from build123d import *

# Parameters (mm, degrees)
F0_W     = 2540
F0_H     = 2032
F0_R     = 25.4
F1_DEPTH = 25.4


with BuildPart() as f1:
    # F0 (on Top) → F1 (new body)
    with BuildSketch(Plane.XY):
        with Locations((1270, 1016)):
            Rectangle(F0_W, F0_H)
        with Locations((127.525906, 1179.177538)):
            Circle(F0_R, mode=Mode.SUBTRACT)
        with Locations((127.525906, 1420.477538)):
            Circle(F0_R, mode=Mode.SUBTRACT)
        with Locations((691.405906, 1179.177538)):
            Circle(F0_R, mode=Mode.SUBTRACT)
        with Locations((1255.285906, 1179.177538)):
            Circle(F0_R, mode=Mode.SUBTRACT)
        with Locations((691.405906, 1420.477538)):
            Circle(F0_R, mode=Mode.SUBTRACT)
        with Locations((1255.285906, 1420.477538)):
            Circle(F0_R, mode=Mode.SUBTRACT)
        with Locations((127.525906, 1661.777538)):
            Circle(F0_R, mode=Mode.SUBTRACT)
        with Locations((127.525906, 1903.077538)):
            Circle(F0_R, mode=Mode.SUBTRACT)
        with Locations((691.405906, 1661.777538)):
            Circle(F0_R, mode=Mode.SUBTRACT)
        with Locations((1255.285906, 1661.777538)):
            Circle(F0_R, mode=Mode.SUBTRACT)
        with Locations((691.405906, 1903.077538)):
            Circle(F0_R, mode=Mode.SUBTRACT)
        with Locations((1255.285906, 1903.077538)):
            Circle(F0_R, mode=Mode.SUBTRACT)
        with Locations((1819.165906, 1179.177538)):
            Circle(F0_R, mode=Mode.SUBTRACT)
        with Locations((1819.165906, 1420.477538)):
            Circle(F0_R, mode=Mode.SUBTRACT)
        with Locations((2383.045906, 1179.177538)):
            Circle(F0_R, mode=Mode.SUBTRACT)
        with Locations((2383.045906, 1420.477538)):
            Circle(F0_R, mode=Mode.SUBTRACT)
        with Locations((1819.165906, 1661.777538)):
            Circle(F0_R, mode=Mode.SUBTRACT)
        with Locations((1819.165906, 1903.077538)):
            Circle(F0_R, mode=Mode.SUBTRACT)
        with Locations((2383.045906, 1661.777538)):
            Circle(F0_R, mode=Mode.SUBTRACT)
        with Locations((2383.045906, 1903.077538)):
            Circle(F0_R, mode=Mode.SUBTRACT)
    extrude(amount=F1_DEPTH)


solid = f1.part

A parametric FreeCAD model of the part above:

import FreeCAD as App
import Part
import Sketcher
from FreeCAD import Vector
Q = App.Units.Quantity

doc = App.newDocument("Part")
body = doc.addObject("PartDesign::Body", "Body")

# Sketch on XY plane
sketch1 = body.newObject("Sketcher::SketchObject", "Sketch")
sketch1.AttachmentSupport = (doc.getObject("XY_Plane"), [""])
sketch1.MapMode = "FlatFace"
sketch1.addGeometry([
    Part.LineSegment(Vector(0, 2032, 0), Vector(0, 0, 0)),  # 0
    Part.LineSegment(Vector(0, 0, 0), Vector(2540, 0, 0)),  # 1
    Part.LineSegment(Vector(2540, 0, 0), Vector(2540, 2032, 0)),  # 2
    Part.LineSegment(Vector(2540, 2032, 0), Vector(0, 2032, 0)),  # 3
    Part.Circle(Vector(128, 1179, 0), Vector(0, 0, 1), 25),  # 4
    Part.Circle(Vector(691, 1179, 0), Vector(0, 0, 1), 25),  # 5
    Part.Circle(Vector(128, 1420, 0), Vector(0, 0, 1), 25),  # 6
    Part.Circle(Vector(691, 1420, 0), Vector(0, 0, 1), 25),  # 7
    Part.Circle(Vector(1255, 1179, 0), Vector(0, 0, 1), 25),  # 8
    Part.Circle(Vector(1819, 1179, 0), Vector(0, 0, 1), 25),  # 9
    Part.Circle(Vector(2383, 1179, 0), Vector(0, 0, 1), 25),  # 10
    Part.Circle(Vector(1255, 1420, 0), Vector(0, 0, 1), 25),  # 11
    Part.Circle(Vector(1819, 1420, 0), Vector(0, 0, 1), 25),  # 12
    Part.Circle(Vector(2383, 1420, 0), Vector(0, 0, 1), 25),  # 13
    Part.Circle(Vector(128, 1662, 0), Vector(0, 0, 1), 25),  # 14
    Part.Circle(Vector(691, 1662, 0), Vector(0, 0, 1), 25),  # 15
    Part.Circle(Vector(128, 1903, 0), Vector(0, 0, 1), 25),  # 16
    Part.Circle(Vector(691, 1903, 0), Vector(0, 0, 1), 25),  # 17
    Part.Circle(Vector(1255, 1662, 0), Vector(0, 0, 1), 25),  # 18
    Part.Circle(Vector(1819, 1662, 0), Vector(0, 0, 1), 25),  # 19
    Part.Circle(Vector(2383, 1662, 0), Vector(0, 0, 1), 25),  # 20
    Part.Circle(Vector(1255, 1903, 0), Vector(0, 0, 1), 25),  # 21
    Part.Circle(Vector(1819, 1903, 0), Vector(0, 0, 1), 25),  # 22
    Part.Circle(Vector(2383, 1903, 0), Vector(0, 0, 1), 25),  # 23
], False)
sketch1.addConstraint([
    Sketcher.Constraint("Coincident", 0, 2, 1, 1),
    Sketcher.Constraint("Coincident", 1, 2, 2, 1),
    Sketcher.Constraint("Coincident", 2, 2, 3, 1),
    Sketcher.Constraint("Coincident", 3, 2, 0, 1),
    Sketcher.Constraint("Vertical", 0),
    Sketcher.Constraint("Horizontal", 1),
    Sketcher.Constraint("Vertical", 2),
    Sketcher.Constraint("Horizontal", 3),
    Sketcher.Constraint("Coincident", 0, 2, -1, 1),
    Sketcher.Constraint("Equal", 4, 5),
    Sketcher.Constraint("Equal", 5, 6),
    Sketcher.Constraint("Equal", 6, 7),
    Sketcher.Constraint("Equal", 7, 8),
    Sketcher.Constraint("Equal", 8, 9),
    Sketcher.Constraint("Equal", 9, 10),
    Sketcher.Constraint("Equal", 10, 11),
    Sketcher.Constraint("Equal", 11, 12),
    Sketcher.Constraint("Equal", 12, 13),
    Sketcher.Constraint("Equal", 13, 14),
    Sketcher.Constraint("Equal", 14, 15),
    Sketcher.Constraint("Equal", 15, 16),
    Sketcher.Constraint("Equal", 16, 17),
    Sketcher.Constraint("Equal", 17, 18),
    Sketcher.Constraint("Equal", 18, 19),
    Sketcher.Constraint("Equal", 19, 20),
    Sketcher.Constraint("Equal", 20, 21),
    Sketcher.Constraint("Equal", 21, 22),
    Sketcher.Constraint("Equal", 22, 23),
    Sketcher.Constraint("Horizontal", 4, 3, 5, 3),
    Sketcher.Constraint("Horizontal", 6, 3, 7, 3),
    Sketcher.Constraint("Horizontal", 5, 3, 8, 3),
    Sketcher.Constraint("Horizontal", 8, 3, 9, 3),
    Sketcher.Constraint("Horizontal", 9, 3, 10, 3),
    Sketcher.Constraint("Horizontal", 7, 3, 11, 3),
    Sketcher.Constraint("Horizontal", 11, 3, 12, 3),
    Sketcher.Constraint("Horizontal", 12, 3, 13, 3),
    Sketcher.Constraint("Horizontal", 14, 3, 15, 3),
    Sketcher.Constraint("Horizontal", 16, 3, 17, 3),
    Sketcher.Constraint("Horizontal", 15, 3, 18, 3),
    Sketcher.Constraint("Horizontal", 18, 3, 19, 3),
    Sketcher.Constraint("Horizontal", 19, 3, 20, 3),
    Sketcher.Constraint("Horizontal", 17, 3, 21, 3),
    Sketcher.Constraint("Horizontal", 21, 3, 22, 3),
    Sketcher.Constraint("Horizontal", 22, 3, 23, 3),
    Sketcher.Constraint("Vertical", 4, 3, 6, 3),
    Sketcher.Constraint("Vertical", 5, 3, 7, 3),
    Sketcher.Constraint("Vertical", 8, 3, 11, 3),
    Sketcher.Constraint("Vertical", 9, 3, 12, 3),
    Sketcher.Constraint("Vertical", 10, 3, 13, 3),
    Sketcher.Constraint("Vertical", 6, 3, 14, 3),
    Sketcher.Constraint("Vertical", 7, 3, 15, 3),
    Sketcher.Constraint("Vertical", 14, 3, 16, 3),
    Sketcher.Constraint("Vertical", 15, 3, 17, 3),
    Sketcher.Constraint("Vertical", 11, 3, 18, 3),
    Sketcher.Constraint("Vertical", 12, 3, 19, 3),
    Sketcher.Constraint("Vertical", 13, 3, 20, 3),
    Sketcher.Constraint("Vertical", 18, 3, 21, 3),
    Sketcher.Constraint("Vertical", 19, 3, 22, 3),
    Sketcher.Constraint("Vertical", 20, 3, 23, 3),
    Sketcher.Constraint("Diameter", 4, Q("2 in")),
    Sketcher.Constraint("DistanceX", 1, 1, 1, 2, Q("100 in")),
    Sketcher.Constraint("DistanceY", 0, 2, 0, 1, Q("80 in")),
    Sketcher.Constraint("DistanceY", 4, 3, 14, 3, Q("19 in")),
    Sketcher.Constraint("DistanceY", 6, 3, 16, 3, Q("19 in")),
    Sketcher.Constraint("DistanceX", 4, 3, 5, 3, Q("22.2 in")),
    Sketcher.Constraint("DistanceY", 4, 3, 6, 3, Q("9.5 in")),
    Sketcher.Constraint("DistanceX", 5, 3, 8, 3, Q("22.2 in")),
    Sketcher.Constraint("DistanceX", 8, 3, 9, 3, Q("22.2 in")),
    Sketcher.Constraint("DistanceX", 9, 3, 10, 3, Q("22.2 in")),
    Sketcher.Constraint("DistanceY", -1, 1, 4, 3, Q("1179.177538 mm")),
    Sketcher.Constraint("DistanceX", -1, 1, 4, 3, Q("127.525906 mm")),
])
pad1 = body.newObject("PartDesign::Pad", "Pad")
pad1.Profile = sketch1
pad1.Length = Q("1 in")

doc.recompute()
